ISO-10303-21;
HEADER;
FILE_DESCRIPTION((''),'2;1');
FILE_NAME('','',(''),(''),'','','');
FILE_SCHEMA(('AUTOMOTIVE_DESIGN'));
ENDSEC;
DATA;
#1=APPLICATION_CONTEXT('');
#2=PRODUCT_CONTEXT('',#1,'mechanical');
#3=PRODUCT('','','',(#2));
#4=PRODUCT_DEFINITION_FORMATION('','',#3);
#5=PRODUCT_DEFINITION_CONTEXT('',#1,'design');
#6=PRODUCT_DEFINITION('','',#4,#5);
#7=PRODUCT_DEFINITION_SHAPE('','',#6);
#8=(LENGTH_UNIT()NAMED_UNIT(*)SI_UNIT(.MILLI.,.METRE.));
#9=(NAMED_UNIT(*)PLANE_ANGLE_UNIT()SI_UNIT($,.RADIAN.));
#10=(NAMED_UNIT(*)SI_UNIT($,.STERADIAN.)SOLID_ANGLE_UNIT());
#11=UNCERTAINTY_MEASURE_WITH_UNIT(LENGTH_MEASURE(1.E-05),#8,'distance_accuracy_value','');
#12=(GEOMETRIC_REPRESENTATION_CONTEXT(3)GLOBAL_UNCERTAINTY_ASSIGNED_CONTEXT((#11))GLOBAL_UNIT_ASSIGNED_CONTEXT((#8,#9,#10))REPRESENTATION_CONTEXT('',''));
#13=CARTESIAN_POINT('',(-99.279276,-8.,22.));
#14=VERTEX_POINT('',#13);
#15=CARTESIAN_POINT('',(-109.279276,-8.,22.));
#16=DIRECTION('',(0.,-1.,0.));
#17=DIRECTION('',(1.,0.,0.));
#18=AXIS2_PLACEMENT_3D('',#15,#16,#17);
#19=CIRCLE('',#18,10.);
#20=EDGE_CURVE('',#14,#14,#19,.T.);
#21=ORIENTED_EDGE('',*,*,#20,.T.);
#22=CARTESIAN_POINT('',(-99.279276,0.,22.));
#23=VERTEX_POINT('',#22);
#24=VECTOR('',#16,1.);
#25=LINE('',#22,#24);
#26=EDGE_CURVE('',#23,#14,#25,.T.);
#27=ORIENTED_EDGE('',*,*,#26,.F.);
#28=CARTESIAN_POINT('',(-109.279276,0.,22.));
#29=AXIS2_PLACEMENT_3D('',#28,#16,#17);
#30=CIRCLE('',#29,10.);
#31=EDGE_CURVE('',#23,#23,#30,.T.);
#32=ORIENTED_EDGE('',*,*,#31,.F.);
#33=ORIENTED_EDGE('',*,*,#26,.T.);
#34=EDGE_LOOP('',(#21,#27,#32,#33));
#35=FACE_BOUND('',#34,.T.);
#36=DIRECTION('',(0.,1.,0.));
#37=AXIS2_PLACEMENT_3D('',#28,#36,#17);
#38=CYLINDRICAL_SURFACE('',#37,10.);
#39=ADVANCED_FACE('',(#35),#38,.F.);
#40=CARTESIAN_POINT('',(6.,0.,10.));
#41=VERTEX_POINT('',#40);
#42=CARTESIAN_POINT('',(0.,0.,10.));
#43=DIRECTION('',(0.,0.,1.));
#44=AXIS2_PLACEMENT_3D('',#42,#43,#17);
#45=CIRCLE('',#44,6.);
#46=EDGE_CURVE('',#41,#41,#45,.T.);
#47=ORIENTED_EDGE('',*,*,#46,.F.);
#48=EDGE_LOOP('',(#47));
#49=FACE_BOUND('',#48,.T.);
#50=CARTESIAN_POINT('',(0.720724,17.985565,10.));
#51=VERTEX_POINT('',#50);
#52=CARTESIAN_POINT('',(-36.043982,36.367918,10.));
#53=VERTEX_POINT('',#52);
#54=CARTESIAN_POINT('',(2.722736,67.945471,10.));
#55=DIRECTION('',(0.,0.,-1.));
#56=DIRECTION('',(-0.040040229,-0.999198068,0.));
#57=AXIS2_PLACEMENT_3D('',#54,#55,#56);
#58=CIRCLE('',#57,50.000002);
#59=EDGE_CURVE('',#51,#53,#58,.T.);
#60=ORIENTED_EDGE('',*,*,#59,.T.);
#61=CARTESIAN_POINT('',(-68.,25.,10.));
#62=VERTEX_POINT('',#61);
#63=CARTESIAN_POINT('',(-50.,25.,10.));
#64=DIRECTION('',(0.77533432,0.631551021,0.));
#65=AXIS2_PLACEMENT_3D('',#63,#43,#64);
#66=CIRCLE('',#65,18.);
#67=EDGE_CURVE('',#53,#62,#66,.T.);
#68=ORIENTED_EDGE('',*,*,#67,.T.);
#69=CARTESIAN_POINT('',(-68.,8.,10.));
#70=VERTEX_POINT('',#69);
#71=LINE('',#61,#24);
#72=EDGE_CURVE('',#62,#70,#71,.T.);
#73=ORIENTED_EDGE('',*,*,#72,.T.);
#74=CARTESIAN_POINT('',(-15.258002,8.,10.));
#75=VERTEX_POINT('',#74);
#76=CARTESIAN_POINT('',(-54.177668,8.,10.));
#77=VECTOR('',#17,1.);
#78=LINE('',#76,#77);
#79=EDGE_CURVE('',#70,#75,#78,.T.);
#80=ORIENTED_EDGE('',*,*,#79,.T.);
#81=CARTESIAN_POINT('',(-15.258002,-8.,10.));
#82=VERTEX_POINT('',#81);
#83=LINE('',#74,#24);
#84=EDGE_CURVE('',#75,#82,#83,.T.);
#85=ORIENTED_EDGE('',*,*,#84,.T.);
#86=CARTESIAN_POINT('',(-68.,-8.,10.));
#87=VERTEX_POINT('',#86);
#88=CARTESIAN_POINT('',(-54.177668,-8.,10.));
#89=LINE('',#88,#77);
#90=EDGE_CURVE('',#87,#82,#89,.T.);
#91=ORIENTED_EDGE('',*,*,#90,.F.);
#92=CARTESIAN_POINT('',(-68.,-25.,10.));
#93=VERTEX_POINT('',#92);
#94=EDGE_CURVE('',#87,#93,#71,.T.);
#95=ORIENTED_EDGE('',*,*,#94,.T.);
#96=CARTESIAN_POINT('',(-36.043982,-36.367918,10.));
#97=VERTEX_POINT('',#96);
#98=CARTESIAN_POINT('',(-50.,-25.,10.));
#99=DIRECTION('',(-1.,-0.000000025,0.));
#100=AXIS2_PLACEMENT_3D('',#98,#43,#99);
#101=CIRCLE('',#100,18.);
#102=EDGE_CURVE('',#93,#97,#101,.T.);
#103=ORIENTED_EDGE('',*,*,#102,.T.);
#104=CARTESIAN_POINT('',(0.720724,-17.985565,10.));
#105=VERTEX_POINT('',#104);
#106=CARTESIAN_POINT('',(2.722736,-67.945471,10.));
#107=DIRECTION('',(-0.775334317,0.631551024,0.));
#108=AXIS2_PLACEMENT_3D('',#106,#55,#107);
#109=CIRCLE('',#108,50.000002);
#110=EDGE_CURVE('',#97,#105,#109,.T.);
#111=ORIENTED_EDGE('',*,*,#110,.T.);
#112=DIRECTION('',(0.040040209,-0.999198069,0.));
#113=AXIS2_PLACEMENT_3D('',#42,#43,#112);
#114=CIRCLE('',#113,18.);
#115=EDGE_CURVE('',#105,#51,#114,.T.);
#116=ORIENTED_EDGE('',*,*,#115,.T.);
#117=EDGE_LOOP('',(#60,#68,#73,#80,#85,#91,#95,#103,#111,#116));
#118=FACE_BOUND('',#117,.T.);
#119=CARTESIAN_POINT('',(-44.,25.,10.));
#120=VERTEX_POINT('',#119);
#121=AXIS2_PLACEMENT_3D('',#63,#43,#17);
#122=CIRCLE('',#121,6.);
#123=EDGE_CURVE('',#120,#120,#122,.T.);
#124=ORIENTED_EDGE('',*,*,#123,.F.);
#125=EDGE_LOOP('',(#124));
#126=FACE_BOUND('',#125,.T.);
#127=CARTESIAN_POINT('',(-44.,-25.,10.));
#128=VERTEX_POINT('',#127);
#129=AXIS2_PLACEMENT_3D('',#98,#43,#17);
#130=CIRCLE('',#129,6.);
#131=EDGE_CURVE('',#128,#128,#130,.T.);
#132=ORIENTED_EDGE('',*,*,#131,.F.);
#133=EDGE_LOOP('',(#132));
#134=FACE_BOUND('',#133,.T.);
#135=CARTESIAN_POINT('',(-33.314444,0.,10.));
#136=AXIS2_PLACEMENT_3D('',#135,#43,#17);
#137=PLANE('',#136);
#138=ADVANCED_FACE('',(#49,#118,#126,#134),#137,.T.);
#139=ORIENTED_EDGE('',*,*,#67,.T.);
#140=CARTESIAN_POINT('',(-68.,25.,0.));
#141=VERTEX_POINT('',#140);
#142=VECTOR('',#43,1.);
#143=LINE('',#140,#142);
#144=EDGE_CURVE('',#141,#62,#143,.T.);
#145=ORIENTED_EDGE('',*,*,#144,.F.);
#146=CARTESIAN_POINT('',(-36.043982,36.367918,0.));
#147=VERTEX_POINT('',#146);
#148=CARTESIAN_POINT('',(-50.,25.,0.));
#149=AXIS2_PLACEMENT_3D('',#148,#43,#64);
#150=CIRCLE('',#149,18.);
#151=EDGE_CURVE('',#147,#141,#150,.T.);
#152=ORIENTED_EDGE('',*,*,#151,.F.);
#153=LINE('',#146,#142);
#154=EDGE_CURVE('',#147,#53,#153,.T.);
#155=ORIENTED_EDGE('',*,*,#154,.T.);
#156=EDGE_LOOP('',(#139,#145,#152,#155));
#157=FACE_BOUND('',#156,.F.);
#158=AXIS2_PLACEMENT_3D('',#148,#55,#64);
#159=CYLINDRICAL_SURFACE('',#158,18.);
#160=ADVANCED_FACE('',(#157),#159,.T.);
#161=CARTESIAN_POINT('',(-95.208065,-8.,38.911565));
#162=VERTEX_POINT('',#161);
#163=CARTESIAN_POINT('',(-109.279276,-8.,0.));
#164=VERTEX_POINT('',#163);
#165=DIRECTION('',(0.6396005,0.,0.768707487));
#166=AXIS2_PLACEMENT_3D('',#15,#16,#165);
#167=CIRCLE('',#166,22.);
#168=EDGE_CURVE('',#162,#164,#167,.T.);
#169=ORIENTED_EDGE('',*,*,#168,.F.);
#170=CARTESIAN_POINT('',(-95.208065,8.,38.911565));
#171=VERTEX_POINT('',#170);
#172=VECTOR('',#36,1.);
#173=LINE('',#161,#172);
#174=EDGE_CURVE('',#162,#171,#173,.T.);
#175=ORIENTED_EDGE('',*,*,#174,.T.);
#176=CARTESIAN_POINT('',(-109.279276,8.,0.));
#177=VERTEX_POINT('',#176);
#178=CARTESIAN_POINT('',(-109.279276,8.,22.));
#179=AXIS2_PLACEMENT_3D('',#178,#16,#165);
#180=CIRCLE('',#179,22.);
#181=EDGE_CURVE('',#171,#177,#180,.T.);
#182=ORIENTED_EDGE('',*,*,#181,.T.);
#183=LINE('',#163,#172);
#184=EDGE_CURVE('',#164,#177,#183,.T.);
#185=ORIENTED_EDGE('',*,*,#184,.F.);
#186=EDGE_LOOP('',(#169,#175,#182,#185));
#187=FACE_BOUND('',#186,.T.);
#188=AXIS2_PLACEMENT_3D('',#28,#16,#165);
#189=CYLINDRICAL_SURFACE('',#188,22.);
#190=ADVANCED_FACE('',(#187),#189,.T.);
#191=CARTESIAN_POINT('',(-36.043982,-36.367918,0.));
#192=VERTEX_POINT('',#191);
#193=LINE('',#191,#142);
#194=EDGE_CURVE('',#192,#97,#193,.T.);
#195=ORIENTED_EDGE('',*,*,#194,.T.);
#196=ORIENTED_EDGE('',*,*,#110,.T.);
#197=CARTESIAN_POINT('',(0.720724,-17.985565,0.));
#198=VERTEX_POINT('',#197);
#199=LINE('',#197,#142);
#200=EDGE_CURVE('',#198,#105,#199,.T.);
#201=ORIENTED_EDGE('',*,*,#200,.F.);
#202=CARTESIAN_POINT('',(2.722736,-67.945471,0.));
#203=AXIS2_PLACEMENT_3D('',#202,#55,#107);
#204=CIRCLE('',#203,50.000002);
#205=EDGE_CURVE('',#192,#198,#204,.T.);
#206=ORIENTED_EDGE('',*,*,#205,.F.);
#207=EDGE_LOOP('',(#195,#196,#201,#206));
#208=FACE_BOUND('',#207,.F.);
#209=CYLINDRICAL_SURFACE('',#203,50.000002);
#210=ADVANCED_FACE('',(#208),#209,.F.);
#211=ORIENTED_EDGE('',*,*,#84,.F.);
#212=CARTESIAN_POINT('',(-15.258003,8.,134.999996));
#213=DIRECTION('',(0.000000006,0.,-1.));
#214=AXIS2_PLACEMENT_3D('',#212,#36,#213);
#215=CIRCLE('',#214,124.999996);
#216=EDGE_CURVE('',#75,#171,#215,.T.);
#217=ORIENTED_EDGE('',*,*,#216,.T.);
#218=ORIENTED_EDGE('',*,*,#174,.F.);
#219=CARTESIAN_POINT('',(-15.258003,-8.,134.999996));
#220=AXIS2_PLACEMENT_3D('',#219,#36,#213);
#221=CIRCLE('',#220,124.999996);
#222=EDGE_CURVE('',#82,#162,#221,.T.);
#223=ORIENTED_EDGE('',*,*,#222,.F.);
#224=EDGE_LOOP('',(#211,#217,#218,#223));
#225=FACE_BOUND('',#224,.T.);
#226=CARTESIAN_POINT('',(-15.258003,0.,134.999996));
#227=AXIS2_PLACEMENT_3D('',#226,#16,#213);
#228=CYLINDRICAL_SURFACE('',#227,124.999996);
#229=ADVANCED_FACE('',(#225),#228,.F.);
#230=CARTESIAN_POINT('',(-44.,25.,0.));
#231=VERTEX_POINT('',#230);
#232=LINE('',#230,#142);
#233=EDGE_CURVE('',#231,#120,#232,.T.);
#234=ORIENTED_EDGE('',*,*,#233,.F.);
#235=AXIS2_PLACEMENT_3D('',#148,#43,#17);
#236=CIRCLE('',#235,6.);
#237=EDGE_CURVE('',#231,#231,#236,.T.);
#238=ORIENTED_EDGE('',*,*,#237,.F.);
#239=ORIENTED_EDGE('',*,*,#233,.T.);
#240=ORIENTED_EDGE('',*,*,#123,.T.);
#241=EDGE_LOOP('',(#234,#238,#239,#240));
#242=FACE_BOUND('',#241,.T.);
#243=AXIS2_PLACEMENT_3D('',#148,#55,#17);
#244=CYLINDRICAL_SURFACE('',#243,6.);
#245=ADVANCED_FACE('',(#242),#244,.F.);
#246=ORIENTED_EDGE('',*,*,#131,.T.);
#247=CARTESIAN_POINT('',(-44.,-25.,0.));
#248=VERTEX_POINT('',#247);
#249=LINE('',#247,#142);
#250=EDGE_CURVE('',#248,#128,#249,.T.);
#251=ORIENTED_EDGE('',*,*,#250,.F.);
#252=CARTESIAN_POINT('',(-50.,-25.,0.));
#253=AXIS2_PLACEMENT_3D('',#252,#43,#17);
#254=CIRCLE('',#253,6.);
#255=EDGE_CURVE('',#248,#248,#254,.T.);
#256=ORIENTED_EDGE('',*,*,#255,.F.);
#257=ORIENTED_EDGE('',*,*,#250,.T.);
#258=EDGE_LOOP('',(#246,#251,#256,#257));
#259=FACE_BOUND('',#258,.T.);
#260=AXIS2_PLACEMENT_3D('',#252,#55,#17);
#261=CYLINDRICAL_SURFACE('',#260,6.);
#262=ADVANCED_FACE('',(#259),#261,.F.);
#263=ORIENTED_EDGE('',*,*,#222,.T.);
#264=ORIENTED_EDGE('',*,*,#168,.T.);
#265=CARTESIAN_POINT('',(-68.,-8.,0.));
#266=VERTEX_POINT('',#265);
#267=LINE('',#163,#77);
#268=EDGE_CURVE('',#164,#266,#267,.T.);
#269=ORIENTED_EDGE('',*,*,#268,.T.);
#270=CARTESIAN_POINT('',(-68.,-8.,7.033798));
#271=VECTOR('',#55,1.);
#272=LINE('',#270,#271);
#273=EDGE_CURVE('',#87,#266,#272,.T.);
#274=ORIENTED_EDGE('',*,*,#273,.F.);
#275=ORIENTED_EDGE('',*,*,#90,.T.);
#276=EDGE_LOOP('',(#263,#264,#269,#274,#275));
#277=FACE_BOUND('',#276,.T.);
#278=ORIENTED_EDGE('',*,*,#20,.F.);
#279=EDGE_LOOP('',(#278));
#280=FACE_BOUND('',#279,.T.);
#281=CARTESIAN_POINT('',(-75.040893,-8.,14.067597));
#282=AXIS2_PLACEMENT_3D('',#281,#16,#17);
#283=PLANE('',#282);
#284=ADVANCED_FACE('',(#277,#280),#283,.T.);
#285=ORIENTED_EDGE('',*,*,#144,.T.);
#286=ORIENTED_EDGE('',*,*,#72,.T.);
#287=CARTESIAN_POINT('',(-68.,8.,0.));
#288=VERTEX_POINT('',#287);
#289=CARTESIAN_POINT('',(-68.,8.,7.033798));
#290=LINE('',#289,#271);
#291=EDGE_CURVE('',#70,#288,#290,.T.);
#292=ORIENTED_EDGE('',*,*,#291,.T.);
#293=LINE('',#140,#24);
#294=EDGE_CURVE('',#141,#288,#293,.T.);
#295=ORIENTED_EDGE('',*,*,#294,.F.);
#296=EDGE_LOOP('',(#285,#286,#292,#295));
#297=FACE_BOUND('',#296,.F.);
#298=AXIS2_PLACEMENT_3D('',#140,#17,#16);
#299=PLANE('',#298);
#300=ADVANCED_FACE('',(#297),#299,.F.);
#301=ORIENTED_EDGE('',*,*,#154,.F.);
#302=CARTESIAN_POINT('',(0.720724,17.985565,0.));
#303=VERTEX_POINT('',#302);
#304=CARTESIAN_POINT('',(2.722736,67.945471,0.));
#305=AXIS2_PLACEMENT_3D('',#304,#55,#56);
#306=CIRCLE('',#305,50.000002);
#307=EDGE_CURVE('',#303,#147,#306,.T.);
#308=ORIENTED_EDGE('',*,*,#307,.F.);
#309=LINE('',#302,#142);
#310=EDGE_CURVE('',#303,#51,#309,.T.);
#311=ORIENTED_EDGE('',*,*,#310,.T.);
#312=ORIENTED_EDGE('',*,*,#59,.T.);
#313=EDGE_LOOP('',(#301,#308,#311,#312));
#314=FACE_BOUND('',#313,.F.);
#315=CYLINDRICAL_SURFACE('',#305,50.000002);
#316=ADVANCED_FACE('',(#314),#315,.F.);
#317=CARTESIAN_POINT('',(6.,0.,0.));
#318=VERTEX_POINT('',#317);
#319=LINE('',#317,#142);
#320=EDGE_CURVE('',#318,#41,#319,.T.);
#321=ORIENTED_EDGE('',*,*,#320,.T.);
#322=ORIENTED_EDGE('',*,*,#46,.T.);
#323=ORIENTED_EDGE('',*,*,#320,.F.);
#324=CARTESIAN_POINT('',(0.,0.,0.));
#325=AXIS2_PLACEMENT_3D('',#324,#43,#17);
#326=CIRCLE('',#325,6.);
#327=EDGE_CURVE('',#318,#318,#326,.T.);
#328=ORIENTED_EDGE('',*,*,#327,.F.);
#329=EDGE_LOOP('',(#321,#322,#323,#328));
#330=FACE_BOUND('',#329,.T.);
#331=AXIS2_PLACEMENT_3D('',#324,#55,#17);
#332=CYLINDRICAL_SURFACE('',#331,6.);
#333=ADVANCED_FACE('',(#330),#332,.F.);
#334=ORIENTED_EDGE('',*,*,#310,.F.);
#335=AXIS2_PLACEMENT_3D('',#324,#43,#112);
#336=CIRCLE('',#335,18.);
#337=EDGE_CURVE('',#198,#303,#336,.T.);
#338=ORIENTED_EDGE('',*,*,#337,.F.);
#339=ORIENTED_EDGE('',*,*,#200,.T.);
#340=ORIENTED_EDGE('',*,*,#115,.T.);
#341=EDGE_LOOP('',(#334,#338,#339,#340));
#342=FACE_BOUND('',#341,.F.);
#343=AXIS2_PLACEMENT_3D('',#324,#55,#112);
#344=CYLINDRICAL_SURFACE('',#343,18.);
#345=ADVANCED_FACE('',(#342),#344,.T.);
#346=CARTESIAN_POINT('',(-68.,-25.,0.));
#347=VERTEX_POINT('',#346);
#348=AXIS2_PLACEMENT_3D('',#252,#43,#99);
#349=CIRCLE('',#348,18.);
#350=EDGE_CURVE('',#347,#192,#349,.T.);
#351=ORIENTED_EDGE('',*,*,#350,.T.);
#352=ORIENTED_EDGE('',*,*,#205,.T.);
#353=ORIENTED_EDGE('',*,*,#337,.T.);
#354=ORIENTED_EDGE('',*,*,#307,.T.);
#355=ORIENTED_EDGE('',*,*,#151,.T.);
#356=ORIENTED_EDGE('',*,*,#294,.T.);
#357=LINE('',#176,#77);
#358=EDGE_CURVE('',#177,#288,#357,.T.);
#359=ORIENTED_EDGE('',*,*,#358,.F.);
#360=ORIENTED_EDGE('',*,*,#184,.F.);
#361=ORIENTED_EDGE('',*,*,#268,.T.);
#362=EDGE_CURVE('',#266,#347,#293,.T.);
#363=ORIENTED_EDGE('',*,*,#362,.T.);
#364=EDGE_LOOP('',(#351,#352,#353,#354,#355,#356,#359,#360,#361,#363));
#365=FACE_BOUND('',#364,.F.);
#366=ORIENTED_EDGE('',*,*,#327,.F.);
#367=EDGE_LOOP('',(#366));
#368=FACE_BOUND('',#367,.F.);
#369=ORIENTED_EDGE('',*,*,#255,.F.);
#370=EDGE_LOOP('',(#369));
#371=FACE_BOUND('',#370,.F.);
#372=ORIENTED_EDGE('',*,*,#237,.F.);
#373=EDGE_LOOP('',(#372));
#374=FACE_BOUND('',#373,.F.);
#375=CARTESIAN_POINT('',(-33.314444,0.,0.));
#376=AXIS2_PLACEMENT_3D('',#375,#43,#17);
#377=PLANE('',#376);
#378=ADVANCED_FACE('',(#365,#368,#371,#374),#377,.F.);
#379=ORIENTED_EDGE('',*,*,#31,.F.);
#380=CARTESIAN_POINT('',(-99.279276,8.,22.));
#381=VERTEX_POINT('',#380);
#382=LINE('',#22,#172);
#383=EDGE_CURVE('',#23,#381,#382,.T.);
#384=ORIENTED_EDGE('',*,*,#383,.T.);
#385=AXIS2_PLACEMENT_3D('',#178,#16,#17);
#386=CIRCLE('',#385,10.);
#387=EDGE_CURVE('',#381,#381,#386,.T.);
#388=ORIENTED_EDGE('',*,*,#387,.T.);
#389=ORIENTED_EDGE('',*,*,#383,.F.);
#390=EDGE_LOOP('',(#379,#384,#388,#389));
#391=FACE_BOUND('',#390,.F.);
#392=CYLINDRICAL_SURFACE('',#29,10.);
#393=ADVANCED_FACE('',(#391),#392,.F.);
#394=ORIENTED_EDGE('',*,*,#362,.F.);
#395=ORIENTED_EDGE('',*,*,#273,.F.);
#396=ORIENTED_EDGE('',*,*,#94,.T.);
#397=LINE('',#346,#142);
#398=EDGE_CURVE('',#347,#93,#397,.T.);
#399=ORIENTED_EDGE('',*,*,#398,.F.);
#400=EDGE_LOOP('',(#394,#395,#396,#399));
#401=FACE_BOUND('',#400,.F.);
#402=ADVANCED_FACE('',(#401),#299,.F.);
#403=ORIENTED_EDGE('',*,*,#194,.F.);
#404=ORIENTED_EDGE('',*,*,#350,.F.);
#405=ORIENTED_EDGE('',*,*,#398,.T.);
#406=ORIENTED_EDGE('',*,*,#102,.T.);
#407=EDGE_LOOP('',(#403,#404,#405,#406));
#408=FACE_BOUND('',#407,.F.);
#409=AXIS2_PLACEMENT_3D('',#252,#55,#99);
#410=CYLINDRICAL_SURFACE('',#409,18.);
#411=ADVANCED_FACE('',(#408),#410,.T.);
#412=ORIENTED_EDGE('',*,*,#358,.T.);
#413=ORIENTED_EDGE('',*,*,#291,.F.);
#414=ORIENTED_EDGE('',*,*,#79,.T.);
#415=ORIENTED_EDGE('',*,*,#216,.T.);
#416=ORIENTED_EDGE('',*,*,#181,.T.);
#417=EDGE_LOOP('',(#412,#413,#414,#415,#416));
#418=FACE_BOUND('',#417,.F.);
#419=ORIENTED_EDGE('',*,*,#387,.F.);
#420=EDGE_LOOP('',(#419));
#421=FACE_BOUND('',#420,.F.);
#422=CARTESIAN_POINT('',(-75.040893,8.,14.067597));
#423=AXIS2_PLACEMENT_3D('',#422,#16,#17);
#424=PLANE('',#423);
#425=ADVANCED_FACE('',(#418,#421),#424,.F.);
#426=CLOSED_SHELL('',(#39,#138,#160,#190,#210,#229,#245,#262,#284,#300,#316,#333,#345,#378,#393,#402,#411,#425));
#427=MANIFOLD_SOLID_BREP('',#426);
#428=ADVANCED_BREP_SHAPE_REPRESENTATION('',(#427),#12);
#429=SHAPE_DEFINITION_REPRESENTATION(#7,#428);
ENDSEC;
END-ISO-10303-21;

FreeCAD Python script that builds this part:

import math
import FreeCAD as App
import Part
import Sketcher
from FreeCAD import Vector

doc = App.newDocument("Part")
body = doc.addObject("PartDesign::Body", "Body")

sketch1 = body.newObject("Sketcher::SketchObject", "Sketch")
sketch1.AttachmentSupport = (doc.getObject("XY_Plane"), [""])
sketch1.MapMode = "FlatFace"
sketch1.addGeometry(Part.ArcOfCircle(Part.Circle(Vector(3, -68, 0), Vector(0, 0, 1), 50), math.radians(92), math.radians(141)), False)
sketch1.addGeometry(Part.ArcOfCircle(Part.Circle(Vector(0, 0, 0), Vector(0, 0, 1), 18), math.radians(-88), math.radians(88)), False)
sketch1.addGeometry(Part.ArcOfCircle(Part.Circle(Vector(3, 68, 0), Vector(0, 0, 1), 50), math.radians(-141), math.radians(-92)), False)
sketch1.addGeometry(Part.ArcOfCircle(Part.Circle(Vector(-50, 25, 0), Vector(0, 0, 1), 18), math.radians(39), math.radians(180)), False)
sketch1.addGeometry(Part.LineSegment(Vector(-68, 25, 0), Vector(-68, -25, 0)), False)
sketch1.addGeometry(Part.ArcOfCircle(Part.Circle(Vector(-50, -25, 0), Vector(0, 0, 1), 18), math.radians(-180), math.radians(-39)), False)
sketch1.addGeometry(Part.Circle(Vector(-50, -25, 0), Vector(0, 0, 1), 6), False)
sketch1.addGeometry(Part.Circle(Vector(-50, 25, 0), Vector(0, 0, 1), 6), False)
sketch1.addGeometry(Part.Circle(Vector(0, 0, 0), Vector(0, 0, 1), 6), False)
sketch1.addConstraint(Sketcher.Constraint("Tangent", 0, 1, 1, 1))
sketch1.addConstraint(Sketcher.Constraint("Tangent", 1, 2, 2, 2))
sketch1.addConstraint(Sketcher.Constraint("Tangent", 2, 1, 3, 1))
sketch1.addConstraint(Sketcher.Constraint("Tangent", 3, 2, 4, 1))
sketch1.addConstraint(Sketcher.Constraint("Tangent", 4, 2, 5, 1))
sketch1.addConstraint(Sketcher.Constraint("Tangent", 5, 2, 0, 2))
sketch1.addConstraint(Sketcher.Constraint("Vertical", 4))
sketch1.addConstraint(Sketcher.Constraint("Coincident", 1, 3, -1, 1))
sketch1.addConstraint(Sketcher.Constraint("Coincident", 8, 3, -1, 1))
sketch1.addConstraint(Sketcher.Constraint("Coincident", 6, 3, 5, 3))
sketch1.addConstraint(Sketcher.Constraint("Coincident", 7, 3, 3, 3))
sketch1.addConstraint(Sketcher.Constraint("Equal", 0, 2))
sketch1.addConstraint(Sketcher.Constraint("Equal", 1, 3))
sketch1.addConstraint(Sketcher.Constraint("Equal", 3, 5))
sketch1.addConstraint(Sketcher.Constraint("Equal", 6, 7))
sketch1.addConstraint(Sketcher.Constraint("Equal", 7, 8))
sketch1.addConstraint(Sketcher.Constraint("Vertical", 0, 3, 2, 3))
sketch1.addConstraint(Sketcher.Constraint("Diameter", 6, 12.0))
sketch1.addConstraint(Sketcher.Constraint("Radius", 1, 18.0))
sketch1.addConstraint(Sketcher.Constraint("DistanceY", 4, 2, 4, 1, 50.0))
sketch1.addConstraint(Sketcher.Constraint("DistanceX", 3, 3, -1, 1, 50.0))
sketch1.addConstraint(Sketcher.Constraint("Radius", 0, 50.000002))
pad1 = body.newObject("PartDesign::Pad", "Pad")
pad1.Profile = sketch1
pad1.Length = 10

sketch2 = body.newObject("Sketcher::SketchObject", "Sketch001")
sketch2.AttachmentSupport = (doc.getObject("XZ_Plane"), [""])
sketch2.MapMode = "FlatFace"
sketch2.addGeometry(Part.LineSegment(Vector(-15, 0, 0), Vector(-15, 10, 0)), False)
sketch2.addGeometry(Part.ArcOfCircle(Part.Circle(Vector(-15, 135, 0), Vector(0, 0, 1), 125), math.radians(-130), math.radians(-90)), False)
sketch2.addGeometry(Part.ArcOfCircle(Part.Circle(Vector(-109, 22, 0), Vector(0, 0, 1), 22), math.radians(50), math.radians(270)), False)
sketch2.addGeometry(Part.LineSegment(Vector(-109, 0, 0), Vector(-15, 0, 0)), False)
sketch2.addGeometry(Part.Circle(Vector(-109, 22, 0), Vector(0, 0, 1), 10), False)
sketch2.addConstraint(Sketcher.Constraint("Coincident", 0, 2, 1, 2))
sketch2.addConstraint(Sketcher.Constraint("Tangent", 1, 1, 2, 1))
sketch2.addConstraint(Sketcher.Constraint("Tangent", 2, 2, 3, 1))
sketch2.addConstraint(Sketcher.Constraint("Coincident", 3, 2, 0, 1))
sketch2.addConstraint(Sketcher.Constraint("Vertical", 0))
sketch2.addConstraint(Sketcher.Constraint("Horizontal", 3))
sketch2.addConstraint(Sketcher.Constraint("Coincident", 4, 3, 2, 3))
sketch2.addConstraint(Sketcher.Constraint("PointOnObject", 2, 2, -1))
sketch2.addConstraint(Sketcher.Constraint("Vertical", 1, 3, 0, 2))
sketch2.addConstraint(Sketcher.Constraint("Diameter", 4, 20.0))
sketch2.addConstraint(Sketcher.Constraint("Radius", 2, 22.0))
sketch2.addConstraint(Sketcher.Constraint("DistanceY", 0, 1, 0, 2, 10.0))
sketch2.addConstraint(Sketcher.Constraint("Radius", 1, 124.999996))
sketch2.addConstraint(Sketcher.Constraint("DistanceX", 1, 3, -1, 1, 15.258003))
pad2 = body.newObject("PartDesign::Pad", "Pad001")
pad2.Profile = sketch2
pad2.Type = "TwoLengths"
pad2.Length = 8
pad2.Length2 = 8

doc.recompute()
